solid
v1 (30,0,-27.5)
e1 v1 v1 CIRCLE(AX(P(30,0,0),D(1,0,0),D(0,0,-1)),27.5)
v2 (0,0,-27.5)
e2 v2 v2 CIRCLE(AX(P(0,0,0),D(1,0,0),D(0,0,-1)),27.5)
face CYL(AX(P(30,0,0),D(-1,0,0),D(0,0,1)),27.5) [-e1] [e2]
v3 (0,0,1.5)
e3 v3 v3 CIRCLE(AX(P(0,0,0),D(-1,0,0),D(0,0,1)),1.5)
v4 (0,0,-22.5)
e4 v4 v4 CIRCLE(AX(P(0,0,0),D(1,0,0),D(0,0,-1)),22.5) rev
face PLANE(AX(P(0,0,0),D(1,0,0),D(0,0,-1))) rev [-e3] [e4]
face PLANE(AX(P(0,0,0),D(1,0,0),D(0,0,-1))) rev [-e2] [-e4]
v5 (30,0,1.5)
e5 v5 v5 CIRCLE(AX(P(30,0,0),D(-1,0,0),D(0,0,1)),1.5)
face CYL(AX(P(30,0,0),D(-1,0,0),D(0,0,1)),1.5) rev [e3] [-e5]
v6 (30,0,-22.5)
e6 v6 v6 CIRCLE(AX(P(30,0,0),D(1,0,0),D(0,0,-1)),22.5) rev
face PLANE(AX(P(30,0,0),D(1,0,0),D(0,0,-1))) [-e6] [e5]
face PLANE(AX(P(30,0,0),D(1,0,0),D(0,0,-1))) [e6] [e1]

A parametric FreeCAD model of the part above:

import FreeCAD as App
import Part
import Sketcher

V = App.Vector
Q = App.Units.Quantity

doc = App.newDocument("Part")
params = doc.addObject("Spreadsheet::Sheet", "Params")
for row, (alias, value) in enumerate([
    ("sketch1_diameter", "55 mm"),
    ("pad1_length", "30 mm"),
    ("sketch2_diameter", "3 mm"),
], start=1):
    params.set(f"A{row}", alias)
    params.set(f"B{row}", "=" + value)
    params.setAlias(f"B{row}", alias)

body = doc.addObject("PartDesign::Body", "Body")

# Sketch on YZ plane
sketch1 = body.newObject("Sketcher::SketchObject", "Sketch")
sketch1.AttachmentSupport = (doc.getObject("YZ_Plane"), [""])
sketch1.MapMode = "FlatFace"
sketch1.addGeometry(Part.Circle(V(0, 0, 0), V(0, 0, 1), 28), False)
sketch1.addConstraint([
    Sketcher.Constraint("Coincident", 0, 3, -1, 1),
    Sketcher.Constraint("Diameter", 0, Q("55 mm")),
])
sketch1.setExpression("Constraints[1]", "Params.sketch1_diameter")
pad1 = body.newObject("PartDesign::Pad", "Pad")
pad1.Profile = sketch1
pad1.setExpression("Length", "Params.pad1_length")

# Sketch on YZ plane
sketch2 = body.newObject("Sketcher::SketchObject", "Sketch001")
sketch2.AttachmentSupport = (doc.getObject("YZ_Plane"), [""])
sketch2.MapMode = "FlatFace"
sketch2.addGeometry(Part.Circle(V(0, 0, 0), V(0, 0, 1), 1.5), False)
sketch2.addConstraint([
    Sketcher.Constraint("Coincident", 0, 3, -1, 1),
    Sketcher.Constraint("Diameter", 0, Q("3 mm")),
])
sketch2.setExpression("Constraints[1]", "Params.sketch2_diameter")
pocket1 = body.newObject("PartDesign::Pocket", "Pocket")
pocket1.Profile = sketch2
pocket1.Type = "ThroughAll"
pocket1.Reversed = True

doc.recompute()
